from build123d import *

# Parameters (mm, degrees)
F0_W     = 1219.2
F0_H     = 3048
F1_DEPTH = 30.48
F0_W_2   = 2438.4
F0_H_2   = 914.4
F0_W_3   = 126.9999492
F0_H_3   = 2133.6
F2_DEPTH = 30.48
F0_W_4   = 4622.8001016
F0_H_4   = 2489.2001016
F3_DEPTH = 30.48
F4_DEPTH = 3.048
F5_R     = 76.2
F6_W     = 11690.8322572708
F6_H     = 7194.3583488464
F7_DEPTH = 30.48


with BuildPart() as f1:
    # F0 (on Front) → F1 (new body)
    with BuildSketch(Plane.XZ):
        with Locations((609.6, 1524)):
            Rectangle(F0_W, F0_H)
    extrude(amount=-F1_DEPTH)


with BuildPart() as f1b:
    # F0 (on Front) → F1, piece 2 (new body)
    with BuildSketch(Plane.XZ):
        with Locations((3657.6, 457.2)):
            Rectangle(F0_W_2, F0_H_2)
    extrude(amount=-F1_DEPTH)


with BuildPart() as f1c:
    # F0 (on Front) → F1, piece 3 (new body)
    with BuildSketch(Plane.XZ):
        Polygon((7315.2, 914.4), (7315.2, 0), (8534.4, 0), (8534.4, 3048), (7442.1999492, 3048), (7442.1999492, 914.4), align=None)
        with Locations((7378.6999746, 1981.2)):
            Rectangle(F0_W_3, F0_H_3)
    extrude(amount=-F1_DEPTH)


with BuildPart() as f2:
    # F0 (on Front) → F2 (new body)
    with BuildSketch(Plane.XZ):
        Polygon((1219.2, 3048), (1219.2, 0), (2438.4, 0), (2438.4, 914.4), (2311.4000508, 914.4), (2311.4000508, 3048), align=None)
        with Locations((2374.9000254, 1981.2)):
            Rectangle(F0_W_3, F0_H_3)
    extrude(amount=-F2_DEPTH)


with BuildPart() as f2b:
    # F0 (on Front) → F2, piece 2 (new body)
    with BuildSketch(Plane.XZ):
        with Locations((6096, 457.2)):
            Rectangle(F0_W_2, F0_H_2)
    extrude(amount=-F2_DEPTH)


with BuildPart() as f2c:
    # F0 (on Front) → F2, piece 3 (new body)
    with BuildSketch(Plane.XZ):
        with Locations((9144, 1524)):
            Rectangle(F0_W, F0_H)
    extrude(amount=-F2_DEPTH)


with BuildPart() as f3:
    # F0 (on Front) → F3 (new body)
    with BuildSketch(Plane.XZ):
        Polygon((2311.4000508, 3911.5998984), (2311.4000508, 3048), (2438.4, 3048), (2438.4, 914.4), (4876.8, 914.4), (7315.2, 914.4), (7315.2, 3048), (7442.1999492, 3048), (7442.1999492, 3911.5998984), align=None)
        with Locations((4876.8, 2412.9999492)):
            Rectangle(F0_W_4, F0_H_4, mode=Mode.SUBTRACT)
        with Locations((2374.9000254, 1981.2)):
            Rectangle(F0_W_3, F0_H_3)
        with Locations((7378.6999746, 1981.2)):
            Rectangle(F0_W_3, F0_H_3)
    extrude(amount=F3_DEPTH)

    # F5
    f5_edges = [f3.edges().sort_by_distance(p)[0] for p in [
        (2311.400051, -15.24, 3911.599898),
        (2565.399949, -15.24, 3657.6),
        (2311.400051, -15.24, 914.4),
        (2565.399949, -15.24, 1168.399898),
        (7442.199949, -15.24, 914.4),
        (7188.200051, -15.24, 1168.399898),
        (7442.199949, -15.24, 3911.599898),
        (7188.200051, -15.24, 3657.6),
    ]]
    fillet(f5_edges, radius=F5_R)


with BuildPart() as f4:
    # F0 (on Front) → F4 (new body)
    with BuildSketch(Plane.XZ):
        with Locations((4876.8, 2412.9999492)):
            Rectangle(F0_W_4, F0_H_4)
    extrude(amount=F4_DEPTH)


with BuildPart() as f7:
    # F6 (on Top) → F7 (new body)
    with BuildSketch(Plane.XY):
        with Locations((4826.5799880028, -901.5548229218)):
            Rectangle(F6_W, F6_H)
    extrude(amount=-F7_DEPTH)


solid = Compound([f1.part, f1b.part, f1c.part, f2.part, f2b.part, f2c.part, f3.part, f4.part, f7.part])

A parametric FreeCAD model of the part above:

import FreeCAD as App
import Part
import Sketcher
Q = App.Units.Quantity


def edges_at(feature, points):
    """Names of the edges that pass closest to the given points."""
    edges = feature.Shape.Edges
    near = lambda p: min(range(len(edges)), key=lambda i: edges[i].distToShape(Part.Vertex(*p))[0])
    return sorted({f"Edge{near(p) + 1}" for p in points})

doc = App.newDocument("Part")
body = doc.addObject("PartDesign::Body", "Body")

sketch1 = body.newObject("Sketcher::SketchObject", "Sketch")
sketch1.AttachmentSupport = (doc.getObject("XZ_Plane"), [""])
sketch1.MapMode = "FlatFace"
sketch1.addGeometry([
    Part.LineSegment(App.Vector(0, 3048, 0), App.Vector(0, 0, 0)),
    Part.LineSegment(App.Vector(0, 0, 0), App.Vector(1219.2, 0, 0)),
    Part.LineSegment(App.Vector(1219.2, 0, 0), App.Vector(1219.2, 3048, 0)),
    Part.LineSegment(App.Vector(1219.2, 3048, 0), App.Vector(0, 3048, 0)),
], False)
sketch1.addConstraint([
    Sketcher.Constraint("Coincident", 0, 2, 1, 1),
    Sketcher.Constraint("Coincident", 1, 2, 2, 1),
    Sketcher.Constraint("Coincident", 2, 2, 3, 1),
    Sketcher.Constraint("Coincident", 3, 2, 0, 1),
    Sketcher.Constraint("Vertical", 0),
    Sketcher.Constraint("Horizontal", 1),
    Sketcher.Constraint("Vertical", 2),
    Sketcher.Constraint("Horizontal", 3),
    Sketcher.Constraint("Coincident", 0, 2, -1, 1),
    Sketcher.Constraint("DistanceX", 1, 1, 1, 2, Q("48 in")),
    Sketcher.Constraint("DistanceY", 0, 2, 0, 1, Q("120 in")),
])
pad1 = body.newObject("PartDesign::Pad", "Pad")
pad1.Profile = sketch1
pad1.Length = Q("1.2 in")
pad1.Reversed = True
body2 = doc.addObject("PartDesign::Body", "Body001")

sketch2 = body2.newObject("Sketcher::SketchObject", "Sketch001")
sketch2.AttachmentSupport = (doc.getObject("XZ_Plane001"), [""])
sketch2.MapMode = "FlatFace"
sketch2.addGeometry([
    Part.LineSegment(App.Vector(2438.4, 914.4, 0), App.Vector(2438.4, 0, 0)),
    Part.LineSegment(App.Vector(2438.4, 0, 0), App.Vector(4876.8, 0, 0)),
    Part.LineSegment(App.Vector(4876.8, 0, 0), App.Vector(4876.8, 914.4, 0)),
    Part.LineSegment(App.Vector(4876.8, 914.4, 0), App.Vector(2438.4, 914.4, 0)),
], False)
sketch2.addConstraint([
    Sketcher.Constraint("Coincident", 0, 2, 1, 1),
    Sketcher.Constraint("Coincident", 1, 2, 2, 1),
    Sketcher.Constraint("Coincident", 2, 2, 3, 1),
    Sketcher.Constraint("Coincident", 3, 2, 0, 1),
    Sketcher.Constraint("Vertical", 0),
    Sketcher.Constraint("Horizontal", 1),
    Sketcher.Constraint("Vertical", 2),
    Sketcher.Constraint("Horizontal", 3),
    Sketcher.Constraint("PointOnObject", 0, 2, -1),
    Sketcher.Constraint("DistanceX", 1, 1, 1, 2, Q("96 in")),
    Sketcher.Constraint("DistanceY", 0, 2, 0, 1, Q("36 in")),
    Sketcher.Constraint("DistanceX", -1, 1, 0, 2, Q("96 in")),
])
pad2 = body2.newObject("PartDesign::Pad", "Pad001")
pad2.Profile = sketch2
pad2.Length = Q("1.2 in")
pad2.Reversed = True
body3 = doc.addObject("PartDesign::Body", "Body002")

sketch3 = body3.newObject("Sketcher::SketchObject", "Sketch002")
sketch3.AttachmentSupport = (doc.getObject("XZ_Plane002"), [""])
sketch3.MapMode = "FlatFace"
sketch3.addGeometry([
    Part.LineSegment(App.Vector(7315.2, 0, 0), App.Vector(8534.4, 0, 0)),
    Part.LineSegment(App.Vector(8534.4, 0, 0), App.Vector(8534.4, 3048, 0)),
    Part.LineSegment(App.Vector(8534.4, 3048, 0), App.Vector(7315.2, 3048, 0)),
    Part.LineSegment(App.Vector(7315.2, 3048, 0), App.Vector(7315.2, 0, 0)),
], False)
sketch3.addConstraint([
    Sketcher.Constraint("Coincident", 0, 2, 1, 1),
    Sketcher.Constraint("Coincident", 1, 2, 2, 1),
    Sketcher.Constraint("Coincident", 2, 2, 3, 1),
    Sketcher.Constraint("Coincident", 3, 2, 0, 1),
    Sketcher.Constraint("Horizontal", 0),
    Sketcher.Constraint("Vertical", 1),
    Sketcher.Constraint("Horizontal", 2),
    Sketcher.Constraint("Vertical", 3),
    Sketcher.Constraint("PointOnObject", 0, 2, -1),
    Sketcher.Constraint("DistanceX", 0, 1, 0, 2, Q("48 in")),
    Sketcher.Constraint("DistanceY", 1, 1, 1, 2, Q("120 in")),
    Sketcher.Constraint("DistanceX", -1, 1, 0, 2, Q("336 in")),
])
pad3 = body3.newObject("PartDesign::Pad", "Pad002")
pad3.Profile = sketch3
pad3.Length = Q("1.2 in")
pad3.Reversed = True
body4 = doc.addObject("PartDesign::Body", "Body003")

sketch4 = body4.newObject("Sketcher::SketchObject", "Sketch003")
sketch4.AttachmentSupport = (doc.getObject("XZ_Plane003"), [""])
sketch4.MapMode = "FlatFace"
sketch4.addGeometry([
    Part.LineSegment(App.Vector(1219.2, 3048, 0), App.Vector(1219.2, 0, 0)),
    Part.LineSegment(App.Vector(1219.2, 0, 0), App.Vector(2438.4, 0, 0)),
    Part.LineSegment(App.Vector(2438.4, 0, 0), App.Vector(2438.4, 3048, 0)),
    Part.LineSegment(App.Vector(2438.4, 3048, 0), App.Vector(1219.2, 3048, 0)),
], False)
sketch4.addConstraint([
    Sketcher.Constraint("Coincident", 0, 2, 1, 1),
    Sketcher.Constraint("Coincident", 1, 2, 2, 1),
    Sketcher.Constraint("Coincident", 2, 2, 3, 1),
    Sketcher.Constraint("Coincident", 3, 2, 0, 1),
    Sketcher.Constraint("Vertical", 0),
    Sketcher.Constraint("Horizontal", 1),
    Sketcher.Constraint("Vertical", 2),
    Sketcher.Constraint("Horizontal", 3),
    Sketcher.Constraint("PointOnObject", 0, 2, -1),
    Sketcher.Constraint("DistanceX", 1, 1, 1, 2, Q("48 in")),
    Sketcher.Constraint("DistanceY", 0, 2, 0, 1, Q("120 in")),
    Sketcher.Constraint("DistanceX", -1, 1, 0, 2, Q("48 in")),
])
pad4 = body4.newObject("PartDesign::Pad", "Pad003")
pad4.Profile = sketch4
pad4.Length = Q("1.2 in")
pad4.Reversed = True
body5 = doc.addObject("PartDesign::Body", "Body004")

sketch5 = body5.newObject("Sketcher::SketchObject", "Sketch004")
sketch5.AttachmentSupport = (doc.getObject("XZ_Plane004"), [""])
sketch5.MapMode = "FlatFace"
sketch5.addGeometry([
    Part.LineSegment(App.Vector(4876.8, 914.4, 0), App.Vector(4876.8, 0, 0)),
    Part.LineSegment(App.Vector(4876.8, 0, 0), App.Vector(7315.2, 0, 0)),
    Part.LineSegment(App.Vector(7315.2, 0, 0), App.Vector(7315.2, 914.4, 0)),
    Part.LineSegment(App.Vector(7315.2, 914.4, 0), App.Vector(4876.8, 914.4, 0)),
], False)
sketch5.addConstraint([
    Sketcher.Constraint("Coincident", 0, 2, 1, 1),
    Sketcher.Constraint("Coincident", 1, 2, 2, 1),
    Sketcher.Constraint("Coincident", 2, 2, 3, 1),
    Sketcher.Constraint("Coincident", 3, 2, 0, 1),
    Sketcher.Constraint("Vertical", 0),
    Sketcher.Constraint("Horizontal", 1),
    Sketcher.Constraint("Vertical", 2),
    Sketcher.Constraint("Horizontal", 3),
    Sketcher.Constraint("PointOnObject", 0, 2, -1),
    Sketcher.Constraint("DistanceX", 1, 1, 1, 2, Q("96 in")),
    Sketcher.Constraint("DistanceY", 0, 2, 0, 1, Q("36 in")),
    Sketcher.Constraint("DistanceX", -1, 1, 0, 2, Q("192 in")),
])
pad5 = body5.newObject("PartDesign::Pad", "Pad004")
pad5.Profile = sketch5
pad5.Length = Q("1.2 in")
pad5.Reversed = True
body6 = doc.addObject("PartDesign::Body", "Body005")

sketch6 = body6.newObject("Sketcher::SketchObject", "Sketch005")
sketch6.AttachmentSupport = (doc.getObject("XZ_Plane005"), [""])
sketch6.MapMode = "FlatFace"
sketch6.addGeometry([
    Part.LineSegment(App.Vector(8534.4, 3048, 0), App.Vector(8534.4, 0, 0)),
    Part.LineSegment(App.Vector(8534.4, 0, 0), App.Vector(9753.6, 0, 0)),
    Part.LineSegment(App.Vector(9753.6, 0, 0), App.Vector(9753.6, 3048, 0)),
    Part.LineSegment(App.Vector(9753.6, 3048, 0), App.Vector(8534.4, 3048, 0)),
], False)
sketch6.addConstraint([
    Sketcher.Constraint("Coincident", 0, 2, 1, 1),
    Sketcher.Constraint("Coincident", 1, 2, 2, 1),
    Sketcher.Constraint("Coincident", 2, 2, 3, 1),
    Sketcher.Constraint("Coincident", 3, 2, 0, 1),
    Sketcher.Constraint("Vertical", 0),
    Sketcher.Constraint("Horizontal", 1),
    Sketcher.Constraint("Vertical", 2),
    Sketcher.Constraint("Horizontal", 3),
    Sketcher.Constraint("PointOnObject", 0, 2, -1),
    Sketcher.Constraint("DistanceX", 1, 1, 1, 2, Q("48 in")),
    Sketcher.Constraint("DistanceY", 0, 2, 0, 1, Q("120 in")),
    Sketcher.Constraint("DistanceX", -1, 1, 0, 2, Q("336 in")),
])
pad6 = body6.newObject("PartDesign::Pad", "Pad005")
pad6.Profile = sketch6
pad6.Length = Q("1.2 in")
pad6.Reversed = True
body7 = doc.addObject("PartDesign::Body", "Body006")

sketch7 = body7.newObject("Sketcher::SketchObject", "Sketch006")
sketch7.AttachmentSupport = (doc.getObject("XZ_Plane006"), [""])
sketch7.MapMode = "FlatFace"
sketch7.addGeometry([
    Part.LineSegment(App.Vector(2311.400051, 3911.599898, 0), App.Vector(2311.400051, 914.4, 0)),
    Part.LineSegment(App.Vector(2311.400051, 914.4, 0), App.Vector(7442.199949, 914.4, 0)),
    Part.LineSegment(App.Vector(7442.199949, 914.4, 0), App.Vector(7442.199949, 3911.599898, 0)),
    Part.LineSegment(App.Vector(7442.199949, 3911.599898, 0), App.Vector(2311.400051, 3911.599898, 0)),
    Part.LineSegment(App.Vector(7188.200051, 1168.399898, 0), App.Vector(2565.399949, 1168.399898, 0)),
    Part.LineSegment(App.Vector(2565.399949, 1168.399898, 0), App.Vector(2565.399949, 3657.6, 0)),
    Part.LineSegment(App.Vector(2565.399949, 3657.6, 0), App.Vector(7188.200051, 3657.6, 0)),
    Part.LineSegment(App.Vector(7188.200051, 3657.6, 0), App.Vector(7188.200051, 1168.399898, 0)),
], False)
sketch7.addConstraint([
    Sketcher.Constraint("Coincident", 0, 2, 1, 1),
    Sketcher.Constraint("Coincident", 1, 2, 2, 1),
    Sketcher.Constraint("Coincident", 2, 2, 3, 1),
    Sketcher.Constraint("Coincident", 3, 2, 0, 1),
    Sketcher.Constraint("Coincident", 4, 2, 5, 1),
    Sketcher.Constraint("Coincident", 5, 2, 6, 1),
    Sketcher.Constraint("Coincident", 6, 2, 7, 1),
    Sketcher.Constraint("Coincident", 7, 2, 4, 1),
    Sketcher.Constraint("Vertical", 0),
    Sketcher.Constraint("Horizontal", 1),
    Sketcher.Constraint("Vertical", 2),
    Sketcher.Constraint("Horizontal", 3),
    Sketcher.Constraint("Horizontal", 4),
    Sketcher.Constraint("Vertical", 5),
    Sketcher.Constraint("Horizontal", 6),
    Sketcher.Constraint("Vertical", 7),
    Sketcher.Constraint("DistanceY", -1, 1, 0, 2, Q("36 in")),
    Sketcher.Constraint("DistanceY", -1, 1, 5, 2, Q("144 in")),
    Sketcher.Constraint("DistanceY", 4, 2, 3, 2, Q("108 in")),
    Sketcher.Constraint("DistanceX", 4, 2, 1, 2, Q("192 in")),
    Sketcher.Constraint("DistanceX", 3, 2, 6, 2, Q("192 in")),
    Sketcher.Constraint("DistanceX", 1, 1, 1, 2, Q("5130.799898 mm")),
    Sketcher.Constraint("DistanceY", 0, 2, 0, 1, Q("2997.199898 mm")),
    Sketcher.Constraint("DistanceX", -1, 1, 0, 2, Q("2311.400051 mm")),
])
pad7 = body7.newObject("PartDesign::Pad", "Pad006")
pad7.Profile = sketch7
pad7.Length = Q("1.2 in")
doc.recompute()

fillet = body7.newObject("PartDesign::Fillet", "Fillet")
fillet.Base = (pad7, edges_at(pad7, [
    (2311.4, -15.24, 3911.6),
    (2565.4, -15.24, 3657.6),
    (2311.4, -15.24, 914.4),
    (2565.4, -15.24, 1168.4),
    (7442.2, -15.24, 914.4),
    (7188.2, -15.24, 1168.4),
    (7442.2, -15.24, 3911.6),
    (7188.2, -15.24, 3657.6),
]))
fillet.Radius = Q("3 in")
body8 = doc.addObject("PartDesign::Body", "Body007")

sketch8 = body8.newObject("Sketcher::SketchObject", "Sketch007")
sketch8.AttachmentSupport = (doc.getObject("XZ_Plane007"), [""])
sketch8.MapMode = "FlatFace"
sketch8.addGeometry([
    Part.LineSegment(App.Vector(2565.399949, 3657.6, 0), App.Vector(2565.399949, 1168.399898, 0)),
    Part.LineSegment(App.Vector(2565.399949, 1168.399898, 0), App.Vector(7188.200051, 1168.399898, 0)),
    Part.LineSegment(App.Vector(7188.200051, 1168.399898, 0), App.Vector(7188.200051, 3657.6, 0)),
    Part.LineSegment(App.Vector(7188.200051, 3657.6, 0), App.Vector(2565.399949, 3657.6, 0)),
], False)
sketch8.addConstraint([
    Sketcher.Constraint("Coincident", 0, 2, 1, 1),
    Sketcher.Constraint("Coincident", 1, 2, 2, 1),
    Sketcher.Constraint("Coincident", 2, 2, 3, 1),
    Sketcher.Constraint("Coincident", 3, 2, 0, 1),
    Sketcher.Constraint("Vertical", 0),
    Sketcher.Constraint("Horizontal", 1),
    Sketcher.Constraint("Vertical", 2),
    Sketcher.Constraint("Horizontal", 3),
    Sketcher.Constraint("DistanceY", -1, 1, 2, 2, Q("144 in")),
    Sketcher.Constraint("DistanceX", 1, 1, 1, 2, Q("4622.800102 mm")),
    Sketcher.Constraint("DistanceY", 0, 2, 0, 1, Q("2489.200102 mm")),
    Sketcher.Constraint("DistanceX", -1, 1, 0, 2, Q("2565.399949 mm")),
])
pad8 = body8.newObject("PartDesign::Pad", "Pad007")
pad8.Profile = sketch8
pad8.Length = Q("0.12 in")
body9 = doc.addObject("PartDesign::Body", "Body008")

sketch9 = body9.newObject("Sketcher::SketchObject", "Sketch008")
sketch9.AttachmentSupport = (doc.getObject("XY_Plane008"), [""])
sketch9.MapMode = "FlatFace"
sketch9.addGeometry([
    Part.LineSegment(App.Vector(-1018.836141, 2695.624352, 0), App.Vector(-1018.836141, -4498.733997, 0)),
    Part.LineSegment(App.Vector(-1018.836141, -4498.733997, 0), App.Vector(10671.996117, -4498.733997, 0)),
    Part.LineSegment(App.Vector(10671.996117, -4498.733997, 0), App.Vector(10671.996117, 2695.624352, 0)),
    Part.LineSegment(App.Vector(10671.996117, 2695.624352, 0), App.Vector(-1018.836141, 2695.624352, 0)),
], False)
sketch9.addConstraint([
    Sketcher.Constraint("Coincident", 0, 2, 1, 1),
    Sketcher.Constraint("Coincident", 1, 2, 2, 1),
    Sketcher.Constraint("Coincident", 2, 2, 3, 1),
    Sketcher.Constraint("Coincident", 3, 2, 0, 1),
    Sketcher.Constraint("Vertical", 0),
    Sketcher.Constraint("Horizontal", 1),
    Sketcher.Constraint("Vertical", 2),
    Sketcher.Constraint("Horizontal", 3),
    Sketcher.Constraint("DistanceY", 0, 2, 0, 1, Q("7194.358349 mm")),
    Sketcher.Constraint("DistanceX", 1, 1, 1, 2, Q("11690.832257 mm")),
    Sketcher.Constraint("DistanceX", 0, 2, -1, 1, Q("1018.836141 mm")),
    Sketcher.Constraint("DistanceY", -1, 1, 2, 2, Q("2695.624352 mm")),
])
pad9 = body9.newObject("PartDesign::Pad", "Pad008")
pad9.Profile = sketch9
pad9.Length = Q("1.2 in")
pad9.Reversed = True

doc.recompute()
